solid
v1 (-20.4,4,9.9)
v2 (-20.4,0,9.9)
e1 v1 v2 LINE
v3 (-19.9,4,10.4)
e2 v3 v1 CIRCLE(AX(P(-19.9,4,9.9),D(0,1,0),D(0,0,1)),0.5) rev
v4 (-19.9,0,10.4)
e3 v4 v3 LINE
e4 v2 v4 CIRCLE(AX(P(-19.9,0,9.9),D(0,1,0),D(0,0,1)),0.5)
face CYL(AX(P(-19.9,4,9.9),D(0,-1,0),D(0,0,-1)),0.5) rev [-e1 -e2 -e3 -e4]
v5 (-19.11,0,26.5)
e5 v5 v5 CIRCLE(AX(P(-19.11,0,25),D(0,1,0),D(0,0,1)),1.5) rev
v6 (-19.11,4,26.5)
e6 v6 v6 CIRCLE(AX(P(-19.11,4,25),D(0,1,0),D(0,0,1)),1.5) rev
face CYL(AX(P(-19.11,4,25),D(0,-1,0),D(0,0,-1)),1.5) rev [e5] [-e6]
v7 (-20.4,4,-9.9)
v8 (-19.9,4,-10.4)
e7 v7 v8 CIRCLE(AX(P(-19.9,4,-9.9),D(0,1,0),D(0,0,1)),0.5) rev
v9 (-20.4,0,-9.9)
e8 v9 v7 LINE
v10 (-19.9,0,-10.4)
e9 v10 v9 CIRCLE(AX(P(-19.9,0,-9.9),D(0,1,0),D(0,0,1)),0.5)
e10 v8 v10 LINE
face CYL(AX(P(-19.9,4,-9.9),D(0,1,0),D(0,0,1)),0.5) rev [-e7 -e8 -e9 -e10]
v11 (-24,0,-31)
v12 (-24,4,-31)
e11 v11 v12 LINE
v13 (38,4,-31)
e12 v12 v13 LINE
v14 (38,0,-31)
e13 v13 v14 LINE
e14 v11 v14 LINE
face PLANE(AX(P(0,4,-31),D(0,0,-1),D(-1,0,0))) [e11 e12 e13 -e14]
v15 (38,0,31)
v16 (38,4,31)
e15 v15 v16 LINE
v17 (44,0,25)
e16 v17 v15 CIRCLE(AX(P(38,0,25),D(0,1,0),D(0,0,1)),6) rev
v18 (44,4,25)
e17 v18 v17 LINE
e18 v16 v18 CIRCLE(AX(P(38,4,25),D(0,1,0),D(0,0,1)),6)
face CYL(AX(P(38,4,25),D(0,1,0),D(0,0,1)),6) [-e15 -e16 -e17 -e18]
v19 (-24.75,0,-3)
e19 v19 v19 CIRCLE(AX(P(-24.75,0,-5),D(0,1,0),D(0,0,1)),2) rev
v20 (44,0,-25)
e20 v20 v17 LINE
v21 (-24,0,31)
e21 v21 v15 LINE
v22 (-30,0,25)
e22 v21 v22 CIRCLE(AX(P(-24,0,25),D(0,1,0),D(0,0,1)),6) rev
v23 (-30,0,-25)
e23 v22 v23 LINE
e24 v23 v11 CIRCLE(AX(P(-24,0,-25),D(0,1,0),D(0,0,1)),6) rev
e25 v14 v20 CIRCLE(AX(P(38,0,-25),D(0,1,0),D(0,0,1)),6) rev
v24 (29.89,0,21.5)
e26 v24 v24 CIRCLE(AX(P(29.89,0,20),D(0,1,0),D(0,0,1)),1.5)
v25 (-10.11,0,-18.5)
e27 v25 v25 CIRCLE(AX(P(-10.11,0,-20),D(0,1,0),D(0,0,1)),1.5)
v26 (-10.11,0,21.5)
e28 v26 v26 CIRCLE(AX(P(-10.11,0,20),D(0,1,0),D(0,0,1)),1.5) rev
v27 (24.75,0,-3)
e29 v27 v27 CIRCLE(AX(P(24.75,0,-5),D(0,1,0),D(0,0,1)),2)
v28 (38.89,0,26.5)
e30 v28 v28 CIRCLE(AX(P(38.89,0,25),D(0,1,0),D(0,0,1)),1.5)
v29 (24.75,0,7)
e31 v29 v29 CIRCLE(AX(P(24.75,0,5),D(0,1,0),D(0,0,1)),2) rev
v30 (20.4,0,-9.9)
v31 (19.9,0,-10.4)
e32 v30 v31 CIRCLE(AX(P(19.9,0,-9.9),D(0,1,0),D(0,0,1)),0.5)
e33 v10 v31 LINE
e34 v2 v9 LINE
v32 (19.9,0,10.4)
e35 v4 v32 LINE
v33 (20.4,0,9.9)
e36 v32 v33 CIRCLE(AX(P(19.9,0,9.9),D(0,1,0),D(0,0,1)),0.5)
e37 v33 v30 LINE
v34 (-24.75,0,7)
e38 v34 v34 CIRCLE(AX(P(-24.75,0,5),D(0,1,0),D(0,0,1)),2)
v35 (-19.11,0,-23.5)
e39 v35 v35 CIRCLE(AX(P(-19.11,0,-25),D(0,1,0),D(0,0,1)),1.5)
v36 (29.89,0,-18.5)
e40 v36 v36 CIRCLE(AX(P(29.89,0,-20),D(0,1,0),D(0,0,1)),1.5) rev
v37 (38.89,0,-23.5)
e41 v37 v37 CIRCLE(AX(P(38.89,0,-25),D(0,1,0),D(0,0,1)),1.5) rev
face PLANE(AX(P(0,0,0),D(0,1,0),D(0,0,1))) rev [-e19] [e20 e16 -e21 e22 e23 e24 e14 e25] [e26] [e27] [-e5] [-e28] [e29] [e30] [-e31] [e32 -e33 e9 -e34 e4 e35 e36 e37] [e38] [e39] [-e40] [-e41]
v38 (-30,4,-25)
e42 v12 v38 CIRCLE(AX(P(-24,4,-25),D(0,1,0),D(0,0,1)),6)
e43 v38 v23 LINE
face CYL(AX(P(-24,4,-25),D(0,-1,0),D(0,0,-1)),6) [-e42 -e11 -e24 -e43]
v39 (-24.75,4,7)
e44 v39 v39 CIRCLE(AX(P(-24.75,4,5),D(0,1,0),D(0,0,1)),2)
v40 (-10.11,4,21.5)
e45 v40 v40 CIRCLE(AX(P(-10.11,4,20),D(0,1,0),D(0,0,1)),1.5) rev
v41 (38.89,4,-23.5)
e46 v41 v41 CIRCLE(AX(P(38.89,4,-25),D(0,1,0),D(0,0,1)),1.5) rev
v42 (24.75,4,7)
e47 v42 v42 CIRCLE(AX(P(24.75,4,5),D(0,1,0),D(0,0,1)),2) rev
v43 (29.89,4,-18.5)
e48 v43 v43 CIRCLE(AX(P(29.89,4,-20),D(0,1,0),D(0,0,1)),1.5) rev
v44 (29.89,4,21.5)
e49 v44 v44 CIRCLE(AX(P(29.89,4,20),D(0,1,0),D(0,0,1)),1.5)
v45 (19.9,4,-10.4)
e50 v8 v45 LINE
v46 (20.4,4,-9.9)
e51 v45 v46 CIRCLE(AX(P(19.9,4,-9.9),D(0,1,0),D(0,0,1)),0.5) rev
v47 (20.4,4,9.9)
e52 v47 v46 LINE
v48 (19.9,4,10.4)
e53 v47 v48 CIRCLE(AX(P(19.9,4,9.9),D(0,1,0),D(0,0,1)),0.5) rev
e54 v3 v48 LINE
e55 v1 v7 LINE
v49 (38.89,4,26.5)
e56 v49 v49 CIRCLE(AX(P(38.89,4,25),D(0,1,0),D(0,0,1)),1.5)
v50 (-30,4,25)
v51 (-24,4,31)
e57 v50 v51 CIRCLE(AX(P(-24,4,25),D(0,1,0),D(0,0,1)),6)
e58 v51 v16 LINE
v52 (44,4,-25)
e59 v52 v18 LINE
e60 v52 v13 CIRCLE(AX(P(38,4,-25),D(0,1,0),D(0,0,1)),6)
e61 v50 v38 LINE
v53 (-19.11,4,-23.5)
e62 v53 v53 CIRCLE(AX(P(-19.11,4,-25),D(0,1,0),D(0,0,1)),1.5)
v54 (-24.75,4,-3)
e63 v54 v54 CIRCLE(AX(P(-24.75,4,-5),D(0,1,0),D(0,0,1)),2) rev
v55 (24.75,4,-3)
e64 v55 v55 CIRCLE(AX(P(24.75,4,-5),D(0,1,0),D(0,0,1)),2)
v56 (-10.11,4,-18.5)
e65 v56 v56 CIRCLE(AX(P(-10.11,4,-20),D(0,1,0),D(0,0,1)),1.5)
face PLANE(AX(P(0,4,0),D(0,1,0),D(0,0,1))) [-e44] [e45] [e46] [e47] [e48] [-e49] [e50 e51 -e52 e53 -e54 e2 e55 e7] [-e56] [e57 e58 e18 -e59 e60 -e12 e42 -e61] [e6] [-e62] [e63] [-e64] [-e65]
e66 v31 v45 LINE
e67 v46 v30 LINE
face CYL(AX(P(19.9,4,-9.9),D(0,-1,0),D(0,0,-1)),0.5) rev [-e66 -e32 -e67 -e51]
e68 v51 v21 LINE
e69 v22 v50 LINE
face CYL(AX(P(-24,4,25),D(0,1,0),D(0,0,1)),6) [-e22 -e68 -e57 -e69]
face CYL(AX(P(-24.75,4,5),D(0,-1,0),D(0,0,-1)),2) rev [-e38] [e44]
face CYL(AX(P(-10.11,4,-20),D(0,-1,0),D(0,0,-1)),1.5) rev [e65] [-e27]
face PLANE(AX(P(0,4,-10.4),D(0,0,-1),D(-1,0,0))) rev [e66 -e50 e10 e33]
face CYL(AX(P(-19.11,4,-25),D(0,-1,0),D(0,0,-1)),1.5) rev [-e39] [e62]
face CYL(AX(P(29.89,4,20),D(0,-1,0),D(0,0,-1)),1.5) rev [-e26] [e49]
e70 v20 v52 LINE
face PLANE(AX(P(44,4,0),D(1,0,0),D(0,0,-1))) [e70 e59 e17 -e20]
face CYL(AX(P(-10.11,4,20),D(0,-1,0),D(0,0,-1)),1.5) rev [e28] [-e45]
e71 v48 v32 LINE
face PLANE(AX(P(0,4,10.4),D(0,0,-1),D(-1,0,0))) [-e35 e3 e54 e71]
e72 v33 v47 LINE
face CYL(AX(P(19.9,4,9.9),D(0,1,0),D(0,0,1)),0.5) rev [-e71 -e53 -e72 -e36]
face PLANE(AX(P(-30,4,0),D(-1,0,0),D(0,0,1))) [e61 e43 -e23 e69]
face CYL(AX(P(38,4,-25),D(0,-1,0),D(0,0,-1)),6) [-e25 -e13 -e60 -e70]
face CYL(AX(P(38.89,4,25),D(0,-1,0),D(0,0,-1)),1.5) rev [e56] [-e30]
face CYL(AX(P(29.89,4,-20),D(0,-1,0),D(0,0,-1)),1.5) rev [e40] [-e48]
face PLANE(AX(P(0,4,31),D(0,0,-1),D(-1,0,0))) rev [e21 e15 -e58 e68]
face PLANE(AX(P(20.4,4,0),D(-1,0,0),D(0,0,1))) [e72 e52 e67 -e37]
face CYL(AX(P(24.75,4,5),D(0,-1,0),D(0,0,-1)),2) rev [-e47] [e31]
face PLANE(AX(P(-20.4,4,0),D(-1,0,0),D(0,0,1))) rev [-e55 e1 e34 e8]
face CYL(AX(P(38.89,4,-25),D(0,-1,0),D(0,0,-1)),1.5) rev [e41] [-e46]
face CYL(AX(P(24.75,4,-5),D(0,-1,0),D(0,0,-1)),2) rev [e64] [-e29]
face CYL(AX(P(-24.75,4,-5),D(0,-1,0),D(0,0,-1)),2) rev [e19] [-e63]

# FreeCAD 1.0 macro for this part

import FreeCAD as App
import Part
import Sketcher

V = App.Vector


def edges_at(feature, points):
    """Names of the edges that pass closest to the given points."""
    edges = feature.Shape.Edges
    near = lambda p: min(range(len(edges)), key=lambda i: edges[i].distToShape(Part.Vertex(*p))[0])
    return sorted({f"Edge{near(p) + 1}" for p in points})


def add_polygon(sketch, points):
    """Adds a closed chain of lines whose ends are joined by coincident constraints."""
    first, n = sketch.GeometryCount, len(points)
    for a, b in zip(points, points[1:] + points[:1]):
        sketch.addGeometry(Part.LineSegment(App.Vector(*a, 0), App.Vector(*b, 0)), False)
    for i in range(n):
        sketch.addConstraint(Sketcher.Constraint("Coincident", first + i, 2, first + (i + 1) % n, 1))

doc = App.newDocument("Part")
body = doc.addObject("PartDesign::Body", "Body")

# Sketch on XZ plane
sketch1 = body.newObject("Sketcher::SketchObject", "Sketch")
sketch1.AttachmentSupport = (doc.getObject("XZ_Plane"), [""])
sketch1.MapMode = "FlatFace"
add_polygon(sketch1, [(-30, -31), (-30, 31), (44, 31), (44, -31)])  # lines 0-3
sketch1.addGeometry(Part.Circle(V(-19.1, 25, 0), V(0, 0, 1), 1.5), False)  # 4
sketch1.addGeometry(Part.Circle(V(-10.1, 20, 0), V(0, 0, 1), 1.5), False)  # 5
sketch1.addGeometry(Part.Circle(V(-24.8, 5, 0), V(0, 0, 1), 2), False)  # 6
sketch1.addGeometry(Part.Circle(V(29.9, 20, 0), V(0, 0, 1), 1.5), False)  # 7
sketch1.addGeometry(Part.Circle(V(38.9, 25, 0), V(0, 0, 1), 1.5), False)  # 8
sketch1.addGeometry(Part.Circle(V(24.8, 5, 0), V(0, 0, 1), 2), False)  # 9
sketch1.addGeometry(Part.Circle(V(-24.8, -5, 0), V(0, 0, 1), 2), False)  # 10
add_polygon(sketch1, [(20.4, 10.4), (-20.4, 10.4), (-20.4, -10.4), (20.4, -10.4)])  # lines 11-14
sketch1.addGeometry(Part.Circle(V(-19.1, -25, 0), V(0, 0, 1), 1.5), False)  # 15
sketch1.addGeometry(Part.Circle(V(-10.1, -20, 0), V(0, 0, 1), 1.5), False)  # 16
sketch1.addGeometry(Part.Circle(V(24.8, -5, 0), V(0, 0, 1), 2), False)  # 17
sketch1.addGeometry(Part.Circle(V(29.9, -20, 0), V(0, 0, 1), 1.5), False)  # 18
sketch1.addGeometry(Part.Circle(V(38.9, -25, 0), V(0, 0, 1), 1.5), False)  # 19
sketch1.addConstraint([
    Sketcher.Constraint("Vertical", 0),
    Sketcher.Constraint("Horizontal", 1),
    Sketcher.Constraint("Vertical", 2),
    Sketcher.Constraint("Horizontal", 3),
    Sketcher.Constraint("Horizontal", 11),
    Sketcher.Constraint("Vertical", 12),
    Sketcher.Constraint("Horizontal", 13),
    Sketcher.Constraint("Vertical", 14),
    Sketcher.Constraint("Equal", 4, 5),
    Sketcher.Constraint("Equal", 5, 7),
    Sketcher.Constraint("Equal", 7, 8),
    Sketcher.Constraint("Equal", 6, 9),
    Sketcher.Constraint("Equal", 9, 10),
    Sketcher.Constraint("Equal", 8, 15),
    Sketcher.Constraint("Equal", 15, 16),
    Sketcher.Constraint("Equal", 10, 17),
    Sketcher.Constraint("Equal", 16, 18),
    Sketcher.Constraint("Equal", 18, 19),
    Sketcher.Constraint("Symmetric", 9, 3, 10, 3, -1, 1),
    Sketcher.Constraint("Symmetric", 6, 3, 17, 3, -1, 1),
    Sketcher.Constraint("Symmetric", 11, 2, 13, 2, -1, 1),
    Sketcher.Constraint("Symmetric", 6, 3, 9, 3, -2),
    Sketcher.Constraint("Symmetric", 4, 3, 15, 3, -1),
    Sketcher.Constraint("Symmetric", 5, 3, 16, 3, -1),
    Sketcher.Constraint("Symmetric", 7, 3, 18, 3, -1),
    Sketcher.Constraint("Symmetric", 8, 3, 19, 3, -1),
    Sketcher.Constraint("Horizontal", 5, 3, 7, 3),
    Sketcher.Constraint("Horizontal", 4, 3, 8, 3),
    Sketcher.Constraint("Diameter", 4, 3.0),
    Sketcher.Constraint("Diameter", 6, 4.0),
    Sketcher.Constraint("DistanceX", 1, 1, 1, 2, 74.0),
    Sketcher.Constraint("DistanceY", 0, 1, 0, 2, 62.0),
    Sketcher.Constraint("DistanceX", 11, 2, 11, 1, 40.8),
    Sketcher.Constraint("DistanceY", 12, 2, 12, 1, 20.8),
    Sketcher.Constraint("DistanceY", -1, 1, 4, 3, 25.0),
    Sketcher.Constraint("DistanceY", -1, 1, 5, 3, 20.0),
    Sketcher.Constraint("DistanceY", -1, 1, 6, 3, 5.0),
    Sketcher.Constraint("DistanceX", 0, 2, -1, 1, 30.0),
    Sketcher.Constraint("DistanceY", -1, 1, 0, 2, 31.0),
    Sketcher.Constraint("DistanceX", 4, 3, 5, 3, 9.0),
    Sketcher.Constraint("DistanceX", 5, 3, 7, 3, 40.0),
    Sketcher.Constraint("DistanceX", 7, 3, 8, 3, 9.0),
    Sketcher.Constraint("DistanceX", 6, 3, 9, 3, 49.5),
    Sketcher.Constraint("DistanceX", 4, 3, -1, 1, 19.11),
])
pad1 = body.newObject("PartDesign::Pad", "Pad")
pad1.Profile = sketch1
pad1.Length = 4
pad1.Reversed = True
doc.recompute()

fillet = body.newObject("PartDesign::Fillet", "Fillet")
fillet.Base = (pad1, edges_at(pad1, [
    (20.4, 2, -10.4),
    (-20.4, 2, -10.4),
    (-20.4, 2, 10.4),
    (20.4, 2, 10.4),
]))
fillet.Radius = 0.5
doc.recompute()

fillet2 = body.newObject("PartDesign::Fillet", "Fillet001")
fillet2.Base = (fillet, edges_at(fillet, [
    (44, 2, 31),
    (-30, 2, 31),
    (-30, 2, -31),
    (44, 2, -31),
]))
fillet2.Radius = 6

doc.recompute()
